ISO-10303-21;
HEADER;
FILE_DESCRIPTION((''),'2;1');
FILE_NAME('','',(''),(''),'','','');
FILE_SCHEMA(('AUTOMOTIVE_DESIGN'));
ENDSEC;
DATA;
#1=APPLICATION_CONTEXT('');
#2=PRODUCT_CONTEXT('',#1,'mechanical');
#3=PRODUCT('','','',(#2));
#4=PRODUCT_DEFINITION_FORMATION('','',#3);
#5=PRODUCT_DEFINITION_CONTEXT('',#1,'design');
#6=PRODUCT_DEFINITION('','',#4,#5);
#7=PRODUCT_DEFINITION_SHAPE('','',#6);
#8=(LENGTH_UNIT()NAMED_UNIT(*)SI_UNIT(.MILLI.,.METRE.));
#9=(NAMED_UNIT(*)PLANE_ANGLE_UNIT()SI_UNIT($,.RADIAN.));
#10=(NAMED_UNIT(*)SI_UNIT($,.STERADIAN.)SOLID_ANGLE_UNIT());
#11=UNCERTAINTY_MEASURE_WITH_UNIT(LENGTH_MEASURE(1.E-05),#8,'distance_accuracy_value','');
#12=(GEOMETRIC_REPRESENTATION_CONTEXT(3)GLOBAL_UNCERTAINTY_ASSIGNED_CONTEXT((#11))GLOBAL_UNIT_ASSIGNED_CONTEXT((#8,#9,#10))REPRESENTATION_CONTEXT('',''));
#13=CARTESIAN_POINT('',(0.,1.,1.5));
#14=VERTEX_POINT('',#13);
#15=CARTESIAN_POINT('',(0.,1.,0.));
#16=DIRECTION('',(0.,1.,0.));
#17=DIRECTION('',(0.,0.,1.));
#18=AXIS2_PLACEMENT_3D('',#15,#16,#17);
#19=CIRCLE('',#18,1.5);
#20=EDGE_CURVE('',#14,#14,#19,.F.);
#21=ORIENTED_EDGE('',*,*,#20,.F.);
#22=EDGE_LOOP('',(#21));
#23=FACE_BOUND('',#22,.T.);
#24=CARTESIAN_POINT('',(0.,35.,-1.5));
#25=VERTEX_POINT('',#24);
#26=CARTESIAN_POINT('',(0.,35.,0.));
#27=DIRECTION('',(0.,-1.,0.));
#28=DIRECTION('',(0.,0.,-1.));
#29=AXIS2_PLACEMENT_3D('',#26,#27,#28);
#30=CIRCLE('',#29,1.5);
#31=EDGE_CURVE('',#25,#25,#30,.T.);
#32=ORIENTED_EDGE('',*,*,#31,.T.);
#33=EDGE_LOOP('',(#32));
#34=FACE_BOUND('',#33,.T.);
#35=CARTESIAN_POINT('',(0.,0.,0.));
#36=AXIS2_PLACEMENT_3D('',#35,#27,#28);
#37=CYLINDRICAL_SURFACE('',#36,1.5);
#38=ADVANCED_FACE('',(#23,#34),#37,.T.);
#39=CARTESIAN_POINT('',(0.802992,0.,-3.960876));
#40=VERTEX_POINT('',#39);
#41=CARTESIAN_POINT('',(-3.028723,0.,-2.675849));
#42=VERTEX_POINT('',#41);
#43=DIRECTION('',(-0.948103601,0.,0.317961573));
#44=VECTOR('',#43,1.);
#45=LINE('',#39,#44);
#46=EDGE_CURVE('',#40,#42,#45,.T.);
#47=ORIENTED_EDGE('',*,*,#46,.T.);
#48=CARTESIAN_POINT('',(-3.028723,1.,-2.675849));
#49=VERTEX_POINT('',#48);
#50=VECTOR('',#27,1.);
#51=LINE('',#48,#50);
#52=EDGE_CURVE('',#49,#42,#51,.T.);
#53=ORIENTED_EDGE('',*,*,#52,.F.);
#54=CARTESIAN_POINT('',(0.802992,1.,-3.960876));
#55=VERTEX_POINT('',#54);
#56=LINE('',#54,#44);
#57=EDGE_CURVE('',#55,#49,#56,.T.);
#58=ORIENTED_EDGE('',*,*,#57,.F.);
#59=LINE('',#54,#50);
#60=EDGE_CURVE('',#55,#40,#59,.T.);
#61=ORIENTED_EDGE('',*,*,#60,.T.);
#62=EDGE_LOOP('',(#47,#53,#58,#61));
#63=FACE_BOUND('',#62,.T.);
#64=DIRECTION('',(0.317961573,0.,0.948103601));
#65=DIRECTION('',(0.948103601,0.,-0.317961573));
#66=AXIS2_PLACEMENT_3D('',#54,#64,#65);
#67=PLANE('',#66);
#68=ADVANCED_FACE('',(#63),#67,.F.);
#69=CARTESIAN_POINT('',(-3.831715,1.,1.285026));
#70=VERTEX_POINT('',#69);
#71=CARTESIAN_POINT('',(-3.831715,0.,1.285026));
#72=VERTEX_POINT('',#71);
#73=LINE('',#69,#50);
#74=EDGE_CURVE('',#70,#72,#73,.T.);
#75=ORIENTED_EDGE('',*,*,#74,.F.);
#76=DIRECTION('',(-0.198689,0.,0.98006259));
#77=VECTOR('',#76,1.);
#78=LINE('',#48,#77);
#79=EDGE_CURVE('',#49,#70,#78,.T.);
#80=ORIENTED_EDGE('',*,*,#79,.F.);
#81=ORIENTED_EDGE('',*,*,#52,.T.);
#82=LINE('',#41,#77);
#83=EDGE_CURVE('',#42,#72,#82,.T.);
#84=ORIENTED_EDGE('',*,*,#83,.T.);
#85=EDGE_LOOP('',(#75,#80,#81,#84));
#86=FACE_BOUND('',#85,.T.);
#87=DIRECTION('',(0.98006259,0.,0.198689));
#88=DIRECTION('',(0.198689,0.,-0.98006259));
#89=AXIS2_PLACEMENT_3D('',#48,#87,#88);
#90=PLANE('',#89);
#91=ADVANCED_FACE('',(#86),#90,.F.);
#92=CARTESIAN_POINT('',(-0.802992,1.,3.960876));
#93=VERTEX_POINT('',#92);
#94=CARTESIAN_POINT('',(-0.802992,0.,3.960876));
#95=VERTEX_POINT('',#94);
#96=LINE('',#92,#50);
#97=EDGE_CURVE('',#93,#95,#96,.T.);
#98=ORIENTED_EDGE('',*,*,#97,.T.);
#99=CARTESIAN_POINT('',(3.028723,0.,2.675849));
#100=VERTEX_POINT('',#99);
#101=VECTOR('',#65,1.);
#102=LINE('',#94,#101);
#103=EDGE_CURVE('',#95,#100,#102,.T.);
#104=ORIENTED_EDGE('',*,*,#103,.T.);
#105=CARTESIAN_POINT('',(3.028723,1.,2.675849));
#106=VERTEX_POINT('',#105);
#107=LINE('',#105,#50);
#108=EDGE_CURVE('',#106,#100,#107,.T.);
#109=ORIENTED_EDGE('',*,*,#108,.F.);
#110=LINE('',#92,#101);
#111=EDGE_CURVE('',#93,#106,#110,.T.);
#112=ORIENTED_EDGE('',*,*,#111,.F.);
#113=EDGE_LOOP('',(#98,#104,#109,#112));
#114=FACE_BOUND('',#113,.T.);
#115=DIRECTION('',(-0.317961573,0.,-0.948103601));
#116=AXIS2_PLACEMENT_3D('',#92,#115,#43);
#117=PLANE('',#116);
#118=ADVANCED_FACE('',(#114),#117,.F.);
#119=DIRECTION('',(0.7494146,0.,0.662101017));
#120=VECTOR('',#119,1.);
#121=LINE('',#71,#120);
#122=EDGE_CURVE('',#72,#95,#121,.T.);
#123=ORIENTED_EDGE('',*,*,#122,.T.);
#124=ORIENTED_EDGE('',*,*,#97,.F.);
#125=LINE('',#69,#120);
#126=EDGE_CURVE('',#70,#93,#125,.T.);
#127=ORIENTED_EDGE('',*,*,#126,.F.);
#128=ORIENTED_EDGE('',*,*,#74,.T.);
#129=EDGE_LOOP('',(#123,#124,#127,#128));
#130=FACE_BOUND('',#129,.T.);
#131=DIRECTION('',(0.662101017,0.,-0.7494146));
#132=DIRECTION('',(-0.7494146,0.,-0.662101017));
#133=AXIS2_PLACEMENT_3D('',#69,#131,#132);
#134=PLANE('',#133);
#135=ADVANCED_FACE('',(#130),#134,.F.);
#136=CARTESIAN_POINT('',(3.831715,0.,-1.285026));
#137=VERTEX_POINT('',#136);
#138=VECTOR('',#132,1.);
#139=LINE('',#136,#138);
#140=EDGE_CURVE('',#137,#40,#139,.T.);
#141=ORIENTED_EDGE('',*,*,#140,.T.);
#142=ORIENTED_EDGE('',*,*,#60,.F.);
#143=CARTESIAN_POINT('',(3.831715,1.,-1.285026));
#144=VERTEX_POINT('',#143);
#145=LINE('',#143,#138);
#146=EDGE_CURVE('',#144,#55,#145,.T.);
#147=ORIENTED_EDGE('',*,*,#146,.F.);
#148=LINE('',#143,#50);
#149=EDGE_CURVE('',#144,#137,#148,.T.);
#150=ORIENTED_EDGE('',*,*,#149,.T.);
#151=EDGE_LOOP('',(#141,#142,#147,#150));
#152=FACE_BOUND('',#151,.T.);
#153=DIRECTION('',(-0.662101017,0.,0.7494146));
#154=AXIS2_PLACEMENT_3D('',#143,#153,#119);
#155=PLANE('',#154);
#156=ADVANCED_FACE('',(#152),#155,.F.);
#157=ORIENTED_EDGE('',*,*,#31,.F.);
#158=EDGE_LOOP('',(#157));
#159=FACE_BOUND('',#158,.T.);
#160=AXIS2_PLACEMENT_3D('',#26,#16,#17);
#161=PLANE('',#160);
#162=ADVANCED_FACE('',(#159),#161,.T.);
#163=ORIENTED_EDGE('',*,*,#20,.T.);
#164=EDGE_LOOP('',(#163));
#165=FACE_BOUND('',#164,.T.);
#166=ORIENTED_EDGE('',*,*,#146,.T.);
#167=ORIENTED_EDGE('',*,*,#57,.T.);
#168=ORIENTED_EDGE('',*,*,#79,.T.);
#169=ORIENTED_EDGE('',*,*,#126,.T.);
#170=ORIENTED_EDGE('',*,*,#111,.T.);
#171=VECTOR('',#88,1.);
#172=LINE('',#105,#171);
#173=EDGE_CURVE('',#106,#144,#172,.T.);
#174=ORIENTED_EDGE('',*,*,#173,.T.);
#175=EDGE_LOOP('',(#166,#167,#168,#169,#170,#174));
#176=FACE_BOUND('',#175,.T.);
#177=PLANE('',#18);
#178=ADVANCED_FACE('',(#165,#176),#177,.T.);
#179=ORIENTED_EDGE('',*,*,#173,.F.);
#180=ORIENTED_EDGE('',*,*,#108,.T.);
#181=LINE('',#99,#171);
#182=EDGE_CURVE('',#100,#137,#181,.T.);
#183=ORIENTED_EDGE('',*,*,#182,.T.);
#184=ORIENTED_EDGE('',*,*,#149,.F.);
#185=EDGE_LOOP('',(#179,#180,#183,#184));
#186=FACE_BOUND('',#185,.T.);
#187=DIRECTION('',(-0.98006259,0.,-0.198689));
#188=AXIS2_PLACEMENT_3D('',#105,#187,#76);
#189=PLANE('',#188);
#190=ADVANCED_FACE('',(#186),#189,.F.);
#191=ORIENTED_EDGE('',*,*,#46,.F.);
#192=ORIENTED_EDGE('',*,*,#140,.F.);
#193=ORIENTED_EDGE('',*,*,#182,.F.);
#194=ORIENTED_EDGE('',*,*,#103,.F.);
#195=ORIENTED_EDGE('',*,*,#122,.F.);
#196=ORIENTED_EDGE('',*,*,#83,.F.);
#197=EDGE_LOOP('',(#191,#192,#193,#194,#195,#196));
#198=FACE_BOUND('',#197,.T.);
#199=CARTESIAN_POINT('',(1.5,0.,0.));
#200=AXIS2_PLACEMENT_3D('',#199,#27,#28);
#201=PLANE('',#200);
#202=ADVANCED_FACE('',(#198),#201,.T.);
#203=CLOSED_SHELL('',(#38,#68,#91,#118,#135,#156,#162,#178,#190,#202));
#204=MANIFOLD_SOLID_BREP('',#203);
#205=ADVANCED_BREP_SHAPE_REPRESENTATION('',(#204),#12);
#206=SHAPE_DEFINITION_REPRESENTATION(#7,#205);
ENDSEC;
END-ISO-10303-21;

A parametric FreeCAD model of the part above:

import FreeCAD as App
import Part
import Sketcher

V = App.Vector


def add_polygon(sketch, points):
    """Adds a closed chain of lines whose ends are joined by coincident constraints."""
    first, n = sketch.GeometryCount, len(points)
    for a, b in zip(points, points[1:] + points[:1]):
        sketch.addGeometry(Part.LineSegment(App.Vector(*a, 0), App.Vector(*b, 0)), False)
    for i in range(n):
        sketch.addConstraint(Sketcher.Constraint("Coincident", first + i, 2, first + (i + 1) % n, 1))

doc = App.newDocument("Part")
body = doc.addObject("PartDesign::Body", "Body")

sketch1 = body.newObject("Sketcher::SketchObject", "Sketch")
sketch1.AttachmentSupport = (doc.getObject("XY_Plane"), [""])
sketch1.MapMode = "FlatFace"
add_polygon(sketch1, [(0, 35), (0, 0), (1.5, 0), (1.5, 35)])
sketch1.addConstraint([
    Sketcher.Constraint("Vertical", 0),
    Sketcher.Constraint("Horizontal", 1),
    Sketcher.Constraint("Vertical", 2),
    Sketcher.Constraint("Horizontal", 3),
    Sketcher.Constraint("Coincident", 0, 2, -1, 1),
    Sketcher.Constraint("DistanceY", 0, 2, 0, 1, 35.0),
    Sketcher.Constraint("DistanceX", 1, 1, 1, 2, 1.5),
])
revolution = body.newObject("PartDesign::Revolution", "Revolution")
revolution.Profile = sketch1
revolution.ReferenceAxis = (sketch1, ["V_Axis"])
revolution.Angle = 360

sketch2 = body.newObject("Sketcher::SketchObject", "Sketch001")
sketch2.AttachmentSupport = (doc.getObject("XZ_Plane"), [""])
sketch2.MapMode = "FlatFace"
add_polygon(sketch2, [(3.8, -1.3), (0.8, -4), (-3, -2.7), (-3.8, 1.3), (-0.8, 4), (3, 2.7)])
sketch2.addConstraint([
    Sketcher.Constraint("Symmetric", 0, 2, 3, 2, -1, 1),
    Sketcher.Constraint("Symmetric", 1, 2, 4, 2, -1, 1),
    Sketcher.Constraint("Symmetric", 2, 2, 5, 2, -1, 1),
    Sketcher.Constraint("Equal", 0, 1),
    Sketcher.Constraint("Equal", 1, 2),
    Sketcher.Constraint("DistanceY", 1, 2, 4, 2, 5.351699),
    Sketcher.Constraint("Distance", 0, 4.041452),
    Sketcher.Constraint("DistanceY", 2, 2, 3, 2, 2.675849),
    Sketcher.Constraint("DistanceX", 1, 2, 3, 2, 2.225731),
])
pad1 = body.newObject("PartDesign::Pad", "Pad")
pad1.Profile = sketch2
pad1.Length = 1
pad1.Reversed = True

doc.recompute()
